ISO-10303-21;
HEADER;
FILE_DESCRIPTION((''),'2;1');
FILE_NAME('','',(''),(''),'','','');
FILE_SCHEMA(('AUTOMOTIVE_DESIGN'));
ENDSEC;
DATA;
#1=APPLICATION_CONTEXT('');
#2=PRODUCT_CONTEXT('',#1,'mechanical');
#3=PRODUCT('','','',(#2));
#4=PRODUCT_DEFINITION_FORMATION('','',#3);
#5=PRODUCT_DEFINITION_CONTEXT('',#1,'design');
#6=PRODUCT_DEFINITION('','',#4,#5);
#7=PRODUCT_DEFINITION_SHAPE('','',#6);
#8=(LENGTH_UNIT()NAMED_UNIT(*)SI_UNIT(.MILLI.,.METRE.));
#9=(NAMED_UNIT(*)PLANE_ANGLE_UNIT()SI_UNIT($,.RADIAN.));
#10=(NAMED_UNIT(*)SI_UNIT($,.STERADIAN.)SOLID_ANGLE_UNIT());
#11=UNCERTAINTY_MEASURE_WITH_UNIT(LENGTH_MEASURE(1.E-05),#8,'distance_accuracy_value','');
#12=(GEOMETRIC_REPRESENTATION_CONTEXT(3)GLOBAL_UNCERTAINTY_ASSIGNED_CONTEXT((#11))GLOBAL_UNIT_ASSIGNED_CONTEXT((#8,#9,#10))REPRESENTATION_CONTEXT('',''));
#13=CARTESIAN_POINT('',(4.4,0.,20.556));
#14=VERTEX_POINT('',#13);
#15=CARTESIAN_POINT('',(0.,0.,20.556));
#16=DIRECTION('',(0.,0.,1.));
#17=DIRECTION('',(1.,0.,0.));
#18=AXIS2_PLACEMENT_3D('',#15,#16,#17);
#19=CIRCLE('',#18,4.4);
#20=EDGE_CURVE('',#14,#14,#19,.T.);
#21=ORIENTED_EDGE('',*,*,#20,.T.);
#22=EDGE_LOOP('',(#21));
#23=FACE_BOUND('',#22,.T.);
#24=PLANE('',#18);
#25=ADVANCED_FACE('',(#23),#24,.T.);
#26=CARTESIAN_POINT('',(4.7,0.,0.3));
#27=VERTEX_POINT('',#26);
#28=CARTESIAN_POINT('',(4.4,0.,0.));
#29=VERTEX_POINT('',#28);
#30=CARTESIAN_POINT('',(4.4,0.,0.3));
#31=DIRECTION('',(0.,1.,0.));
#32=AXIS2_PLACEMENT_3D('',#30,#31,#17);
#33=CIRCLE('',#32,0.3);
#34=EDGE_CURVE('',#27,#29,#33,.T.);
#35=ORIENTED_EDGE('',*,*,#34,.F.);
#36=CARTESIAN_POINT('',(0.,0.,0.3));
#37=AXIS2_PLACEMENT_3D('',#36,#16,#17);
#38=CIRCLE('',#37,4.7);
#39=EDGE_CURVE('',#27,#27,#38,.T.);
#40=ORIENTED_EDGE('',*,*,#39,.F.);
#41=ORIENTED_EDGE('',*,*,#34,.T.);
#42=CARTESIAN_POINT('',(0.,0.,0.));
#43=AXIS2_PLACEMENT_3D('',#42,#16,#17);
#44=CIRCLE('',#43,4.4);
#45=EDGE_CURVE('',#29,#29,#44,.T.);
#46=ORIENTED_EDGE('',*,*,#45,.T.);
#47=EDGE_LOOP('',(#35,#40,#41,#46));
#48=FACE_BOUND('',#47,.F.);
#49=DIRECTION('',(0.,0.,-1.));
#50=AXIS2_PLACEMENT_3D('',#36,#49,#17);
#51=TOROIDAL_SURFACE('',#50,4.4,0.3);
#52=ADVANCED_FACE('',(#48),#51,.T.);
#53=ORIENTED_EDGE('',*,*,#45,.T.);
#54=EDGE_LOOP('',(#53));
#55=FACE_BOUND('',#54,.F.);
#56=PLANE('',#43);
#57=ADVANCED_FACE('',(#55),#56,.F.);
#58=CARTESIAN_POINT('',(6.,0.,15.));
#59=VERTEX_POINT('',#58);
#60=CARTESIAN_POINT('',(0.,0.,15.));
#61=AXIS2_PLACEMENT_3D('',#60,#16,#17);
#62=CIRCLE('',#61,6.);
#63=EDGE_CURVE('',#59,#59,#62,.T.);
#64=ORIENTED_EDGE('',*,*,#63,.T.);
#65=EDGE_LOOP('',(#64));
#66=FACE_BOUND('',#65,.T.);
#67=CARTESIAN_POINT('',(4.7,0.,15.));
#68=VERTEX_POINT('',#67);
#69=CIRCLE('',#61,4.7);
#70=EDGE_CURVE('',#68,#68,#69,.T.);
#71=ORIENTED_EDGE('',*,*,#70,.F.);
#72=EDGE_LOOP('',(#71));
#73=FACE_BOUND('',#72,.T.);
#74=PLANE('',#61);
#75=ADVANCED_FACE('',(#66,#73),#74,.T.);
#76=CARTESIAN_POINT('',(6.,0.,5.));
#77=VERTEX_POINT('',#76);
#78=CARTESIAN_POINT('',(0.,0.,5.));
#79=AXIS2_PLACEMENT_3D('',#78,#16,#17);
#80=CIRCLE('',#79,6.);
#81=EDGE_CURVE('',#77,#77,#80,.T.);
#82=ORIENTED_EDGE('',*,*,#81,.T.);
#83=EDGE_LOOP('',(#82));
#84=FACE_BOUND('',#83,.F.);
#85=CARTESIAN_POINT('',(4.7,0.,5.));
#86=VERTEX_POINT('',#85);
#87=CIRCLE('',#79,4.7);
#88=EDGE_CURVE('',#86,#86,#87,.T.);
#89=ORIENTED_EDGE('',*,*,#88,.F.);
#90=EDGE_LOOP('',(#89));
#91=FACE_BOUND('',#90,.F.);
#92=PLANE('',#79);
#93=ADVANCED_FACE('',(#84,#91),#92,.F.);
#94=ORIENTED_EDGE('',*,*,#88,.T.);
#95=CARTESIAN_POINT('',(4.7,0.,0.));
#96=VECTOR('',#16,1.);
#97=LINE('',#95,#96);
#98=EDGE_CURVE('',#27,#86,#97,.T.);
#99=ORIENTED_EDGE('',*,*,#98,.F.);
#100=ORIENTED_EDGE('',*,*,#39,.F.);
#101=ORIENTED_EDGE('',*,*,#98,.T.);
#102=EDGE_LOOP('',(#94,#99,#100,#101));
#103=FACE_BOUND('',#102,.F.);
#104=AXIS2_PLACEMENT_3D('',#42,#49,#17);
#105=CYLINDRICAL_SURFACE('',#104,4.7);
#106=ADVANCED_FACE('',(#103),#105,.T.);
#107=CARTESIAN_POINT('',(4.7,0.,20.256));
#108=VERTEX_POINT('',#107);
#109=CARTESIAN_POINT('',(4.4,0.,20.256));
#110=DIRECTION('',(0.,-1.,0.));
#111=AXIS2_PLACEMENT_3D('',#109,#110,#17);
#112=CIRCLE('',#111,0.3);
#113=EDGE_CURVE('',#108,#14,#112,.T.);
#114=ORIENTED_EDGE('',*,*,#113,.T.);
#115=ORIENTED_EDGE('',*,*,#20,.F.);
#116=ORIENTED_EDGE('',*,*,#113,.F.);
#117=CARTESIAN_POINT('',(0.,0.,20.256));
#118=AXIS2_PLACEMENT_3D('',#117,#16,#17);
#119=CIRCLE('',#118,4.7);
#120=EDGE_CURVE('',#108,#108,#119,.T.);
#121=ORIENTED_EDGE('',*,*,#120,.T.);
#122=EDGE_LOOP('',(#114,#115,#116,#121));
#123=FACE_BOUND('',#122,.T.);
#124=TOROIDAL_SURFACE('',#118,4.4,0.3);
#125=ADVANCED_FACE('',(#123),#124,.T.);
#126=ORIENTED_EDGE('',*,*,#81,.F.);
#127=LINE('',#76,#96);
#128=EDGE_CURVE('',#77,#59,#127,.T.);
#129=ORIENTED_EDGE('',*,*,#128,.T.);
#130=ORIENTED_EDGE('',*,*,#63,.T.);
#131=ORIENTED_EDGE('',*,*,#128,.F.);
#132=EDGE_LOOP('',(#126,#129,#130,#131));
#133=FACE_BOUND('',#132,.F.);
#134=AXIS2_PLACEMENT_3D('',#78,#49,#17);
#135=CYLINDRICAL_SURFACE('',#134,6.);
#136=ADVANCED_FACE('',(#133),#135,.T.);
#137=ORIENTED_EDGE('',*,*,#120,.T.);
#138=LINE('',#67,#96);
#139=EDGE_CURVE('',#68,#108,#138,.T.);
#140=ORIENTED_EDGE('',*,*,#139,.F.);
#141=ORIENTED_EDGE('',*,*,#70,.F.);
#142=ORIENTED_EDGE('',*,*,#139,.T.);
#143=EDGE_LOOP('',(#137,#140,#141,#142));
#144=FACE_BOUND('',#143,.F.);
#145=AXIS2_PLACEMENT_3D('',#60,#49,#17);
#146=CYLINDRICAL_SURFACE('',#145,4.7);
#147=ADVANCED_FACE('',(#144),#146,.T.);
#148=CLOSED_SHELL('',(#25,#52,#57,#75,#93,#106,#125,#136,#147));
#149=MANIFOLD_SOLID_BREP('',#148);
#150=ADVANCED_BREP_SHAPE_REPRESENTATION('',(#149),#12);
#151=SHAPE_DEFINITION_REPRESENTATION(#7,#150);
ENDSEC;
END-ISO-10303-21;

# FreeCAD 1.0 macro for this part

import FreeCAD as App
import Part
import Sketcher
Q = App.Units.Quantity


def edges_at(feature, points):
    """Names of the edges that pass closest to the given points."""
    edges = feature.Shape.Edges
    near = lambda p: min(range(len(edges)), key=lambda i: edges[i].distToShape(Part.Vertex(*p))[0])
    return sorted({f"Edge{near(p) + 1}" for p in points})

doc = App.newDocument("Part")
params = doc.addObject("Spreadsheet::Sheet", "Params")
for row, (alias, value) in enumerate([
    ("sketch1_diameter", "9.4 mm"),
    ("pad1_length", "5 mm"),
    ("sketch2_diameter", "12 mm"),
    ("pad2_length", "10 mm"),
    ("sketch3_diameter", "9.4 mm"),
    ("pad3_length", "5.556 mm"),
    ("fillet_radius", "0.3 mm"),
], start=1):
    params.set(f"A{row}", alias)
    params.set(f"B{row}", "=" + value)
    params.setAlias(f"B{row}", alias)

body = doc.addObject("PartDesign::Body", "Body")

sketch1 = body.newObject("Sketcher::SketchObject", "Sketch")
sketch1.AttachmentSupport = (doc.getObject("XY_Plane"), [""])
sketch1.MapMode = "FlatFace"
sketch1.addGeometry(Part.Circle(App.Vector(0, 0, 0), App.Vector(0, 0, 1), 4.7), False)
sketch1.addConstraint(Sketcher.Constraint("Coincident", 0, 3, -1, 1))
sketch1.addConstraint(Sketcher.Constraint("Diameter", 0, Q("9.4 mm")))
sketch1.setExpression("Constraints[1]", "Params.sketch1_diameter")
pad1 = body.newObject("PartDesign::Pad", "Pad")
pad1.Profile = sketch1
pad1.setExpression("Length", "Params.pad1_length")

sketch2 = body.newObject("Sketcher::SketchObject", "Sketch001")
sketch2.AttachmentSupport = (doc.getObject("XY_Plane"), [""])
sketch2.MapMode = "FlatFace"
sketch2.AttachmentOffset = App.Placement(App.Vector(0, 0, 5), App.Rotation())
sketch2.addGeometry(Part.Circle(App.Vector(0, 0, 0), App.Vector(0, 0, 1), 6), False)
sketch2.addConstraint(Sketcher.Constraint("Coincident", 0, 3, -1, 1))
sketch2.addConstraint(Sketcher.Constraint("Diameter", 0, Q("12 mm")))
sketch2.setExpression("Constraints[1]", "Params.sketch2_diameter")
pad2 = body.newObject("PartDesign::Pad", "Pad001")
pad2.Profile = sketch2
pad2.setExpression("Length", "Params.pad2_length")

sketch3 = body.newObject("Sketcher::SketchObject", "Sketch002")
sketch3.AttachmentSupport = (doc.getObject("XY_Plane"), [""])
sketch3.MapMode = "FlatFace"
sketch3.AttachmentOffset = App.Placement(App.Vector(0, 0, 15), App.Rotation())
sketch3.addGeometry(Part.Circle(App.Vector(0, 0, 0), App.Vector(0, 0, 1), 4.7), False)
sketch3.addConstraint(Sketcher.Constraint("Coincident", 0, 3, -1, 1))
sketch3.addConstraint(Sketcher.Constraint("Diameter", 0, Q("9.4 mm")))
sketch3.setExpression("Constraints[1]", "Params.sketch3_diameter")
pad3 = body.newObject("PartDesign::Pad", "Pad002")
pad3.Profile = sketch3
pad3.setExpression("Length", "Params.pad3_length")
doc.recompute()

fillet = body.newObject("PartDesign::Fillet", "Fillet")
fillet.Base = (pad3, edges_at(pad3, [(-4.7, 0, 20.556), (-4.7, 0, 0)]))
fillet.setExpression("Radius", "Params.fillet_radius")

doc.recompute()
